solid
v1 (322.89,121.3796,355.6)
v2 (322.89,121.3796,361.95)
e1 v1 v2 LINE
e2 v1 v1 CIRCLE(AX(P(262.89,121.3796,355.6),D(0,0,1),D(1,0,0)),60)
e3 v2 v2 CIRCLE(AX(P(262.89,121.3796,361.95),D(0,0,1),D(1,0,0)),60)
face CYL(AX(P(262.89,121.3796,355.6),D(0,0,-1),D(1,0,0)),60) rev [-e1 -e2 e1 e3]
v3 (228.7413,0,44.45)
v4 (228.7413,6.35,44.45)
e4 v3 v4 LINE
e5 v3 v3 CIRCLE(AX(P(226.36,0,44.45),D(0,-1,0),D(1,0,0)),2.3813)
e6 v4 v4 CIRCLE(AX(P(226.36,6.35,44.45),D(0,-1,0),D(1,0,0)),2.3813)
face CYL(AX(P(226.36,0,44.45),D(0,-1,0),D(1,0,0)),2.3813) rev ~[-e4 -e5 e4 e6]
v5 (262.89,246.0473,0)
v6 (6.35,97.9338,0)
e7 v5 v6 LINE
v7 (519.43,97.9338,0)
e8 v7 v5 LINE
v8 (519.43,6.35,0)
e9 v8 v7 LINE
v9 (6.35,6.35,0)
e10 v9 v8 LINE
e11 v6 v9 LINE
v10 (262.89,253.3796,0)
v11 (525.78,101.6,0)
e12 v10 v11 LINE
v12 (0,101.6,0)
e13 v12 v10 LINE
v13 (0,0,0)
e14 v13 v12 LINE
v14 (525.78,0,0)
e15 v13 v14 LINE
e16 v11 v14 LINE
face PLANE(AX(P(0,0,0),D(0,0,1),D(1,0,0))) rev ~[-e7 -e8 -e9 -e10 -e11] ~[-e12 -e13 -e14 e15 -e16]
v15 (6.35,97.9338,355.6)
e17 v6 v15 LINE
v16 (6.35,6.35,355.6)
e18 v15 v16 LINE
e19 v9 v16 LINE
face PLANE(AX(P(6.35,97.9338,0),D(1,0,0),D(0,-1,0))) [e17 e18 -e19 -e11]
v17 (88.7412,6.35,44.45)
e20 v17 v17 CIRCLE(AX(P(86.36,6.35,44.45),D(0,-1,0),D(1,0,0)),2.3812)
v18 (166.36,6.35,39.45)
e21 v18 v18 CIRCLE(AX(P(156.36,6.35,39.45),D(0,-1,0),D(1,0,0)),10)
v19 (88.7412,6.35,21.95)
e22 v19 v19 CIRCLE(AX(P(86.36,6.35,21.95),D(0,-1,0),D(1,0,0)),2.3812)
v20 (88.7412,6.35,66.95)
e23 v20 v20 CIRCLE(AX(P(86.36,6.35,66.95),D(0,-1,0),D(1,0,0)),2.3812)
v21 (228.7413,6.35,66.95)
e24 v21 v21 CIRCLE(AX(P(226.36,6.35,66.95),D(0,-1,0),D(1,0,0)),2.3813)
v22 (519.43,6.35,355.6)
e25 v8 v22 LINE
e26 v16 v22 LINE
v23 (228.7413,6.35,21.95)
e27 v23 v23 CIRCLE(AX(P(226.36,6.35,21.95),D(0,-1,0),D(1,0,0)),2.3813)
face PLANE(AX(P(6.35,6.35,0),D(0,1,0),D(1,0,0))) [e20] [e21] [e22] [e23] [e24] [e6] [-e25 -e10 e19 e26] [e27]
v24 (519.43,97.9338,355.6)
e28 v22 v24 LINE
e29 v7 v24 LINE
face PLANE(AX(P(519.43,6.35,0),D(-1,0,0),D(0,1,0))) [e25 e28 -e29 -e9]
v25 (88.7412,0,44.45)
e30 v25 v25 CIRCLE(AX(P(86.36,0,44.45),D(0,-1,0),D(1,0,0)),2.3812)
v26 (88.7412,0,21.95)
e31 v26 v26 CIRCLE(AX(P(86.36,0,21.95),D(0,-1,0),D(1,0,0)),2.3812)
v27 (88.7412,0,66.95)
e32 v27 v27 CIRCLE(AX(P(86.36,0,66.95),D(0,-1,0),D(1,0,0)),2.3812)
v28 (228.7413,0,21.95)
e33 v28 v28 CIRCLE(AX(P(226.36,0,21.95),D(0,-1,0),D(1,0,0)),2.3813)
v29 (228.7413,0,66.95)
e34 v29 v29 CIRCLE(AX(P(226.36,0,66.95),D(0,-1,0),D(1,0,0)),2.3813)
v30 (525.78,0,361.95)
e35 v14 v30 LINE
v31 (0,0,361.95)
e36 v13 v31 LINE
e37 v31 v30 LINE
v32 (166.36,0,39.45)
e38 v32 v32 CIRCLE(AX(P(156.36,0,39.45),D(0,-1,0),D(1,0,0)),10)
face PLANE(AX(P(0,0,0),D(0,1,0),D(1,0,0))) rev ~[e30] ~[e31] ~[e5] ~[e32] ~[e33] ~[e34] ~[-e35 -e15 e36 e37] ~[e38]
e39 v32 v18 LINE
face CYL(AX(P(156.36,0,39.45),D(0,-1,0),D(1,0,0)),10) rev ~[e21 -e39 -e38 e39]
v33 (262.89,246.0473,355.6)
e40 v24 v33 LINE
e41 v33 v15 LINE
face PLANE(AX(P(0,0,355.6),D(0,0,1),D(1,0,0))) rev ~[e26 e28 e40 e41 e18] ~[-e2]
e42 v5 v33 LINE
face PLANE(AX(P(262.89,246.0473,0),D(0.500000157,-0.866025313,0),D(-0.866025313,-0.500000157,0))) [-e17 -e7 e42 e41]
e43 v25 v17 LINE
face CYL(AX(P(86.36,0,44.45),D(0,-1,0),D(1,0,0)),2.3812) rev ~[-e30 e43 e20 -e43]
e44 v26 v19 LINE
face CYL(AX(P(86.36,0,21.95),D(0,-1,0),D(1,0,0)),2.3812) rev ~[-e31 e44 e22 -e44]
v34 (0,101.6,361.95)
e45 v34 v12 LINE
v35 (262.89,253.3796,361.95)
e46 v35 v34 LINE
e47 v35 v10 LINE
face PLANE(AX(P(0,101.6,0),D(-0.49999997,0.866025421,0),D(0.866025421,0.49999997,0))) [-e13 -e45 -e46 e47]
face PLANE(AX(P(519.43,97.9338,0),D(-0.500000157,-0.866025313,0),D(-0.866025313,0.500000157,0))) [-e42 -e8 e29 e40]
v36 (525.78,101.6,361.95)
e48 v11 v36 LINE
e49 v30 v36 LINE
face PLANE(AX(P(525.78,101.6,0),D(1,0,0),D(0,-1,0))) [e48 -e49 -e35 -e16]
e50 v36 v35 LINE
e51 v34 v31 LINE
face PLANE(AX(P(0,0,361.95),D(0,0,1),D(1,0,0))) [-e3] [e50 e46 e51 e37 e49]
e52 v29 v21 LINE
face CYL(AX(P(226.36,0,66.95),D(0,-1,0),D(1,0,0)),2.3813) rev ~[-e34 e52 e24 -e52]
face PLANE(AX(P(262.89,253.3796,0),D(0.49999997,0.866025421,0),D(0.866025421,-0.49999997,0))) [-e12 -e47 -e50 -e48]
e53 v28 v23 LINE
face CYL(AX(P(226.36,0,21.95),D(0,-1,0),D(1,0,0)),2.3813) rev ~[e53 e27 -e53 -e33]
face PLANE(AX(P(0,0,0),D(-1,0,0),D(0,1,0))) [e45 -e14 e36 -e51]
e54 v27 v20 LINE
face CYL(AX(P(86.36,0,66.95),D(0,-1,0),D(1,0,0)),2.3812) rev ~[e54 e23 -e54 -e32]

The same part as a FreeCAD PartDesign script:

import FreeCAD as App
import Part
import Sketcher
Q = App.Units.Quantity

doc = App.newDocument("Part")
params = doc.addObject("Spreadsheet::Sheet", "Params")
for row, (alias, value) in enumerate([
    ("sketch1_height", "4 in"),
    ("sketch1_width", "20.7 in"),
    ("pad1_length", "14 in"),
    ("sketch2_height", "4 in"),
    ("sketch2_width", "20.7 in"),
    ("pad2_length", "0.25 in"),
    ("sketch3_diameter", "0.1875 in"),
    ("pocket1_length", "0.25 in"),
], start=1):
    params.set(f"A{row}", alias)
    params.set(f"B{row}", "=" + value)
    params.setAlias(f"B{row}", alias)

body = doc.addObject("PartDesign::Body", "Body")

# Sketch on XY plane
sketch1 = body.newObject("Sketcher::SketchObject", "Sketch")
sketch1.AttachmentSupport = (doc.getObject("XY_Plane"), [""])
sketch1.MapMode = "FlatFace"
sketch1.addGeometry(Part.LineSegment(App.Vector(0, 102, 0), App.Vector(0, 0, 0)), False)
sketch1.addGeometry(Part.LineSegment(App.Vector(0, 0, 0), App.Vector(526, 0, 0)), False)
sketch1.addGeometry(Part.LineSegment(App.Vector(526, 0, 0), App.Vector(526, 102, 0)), False)
sketch1.addGeometry(Part.LineSegment(App.Vector(526, 102, 0), App.Vector(263, 253, 0)), False)
sketch1.addGeometry(Part.LineSegment(App.Vector(263, 253, 0), App.Vector(0, 102, 0)), False)
sketch1.addGeometry(Part.LineSegment(App.Vector(6, 98, 0), App.Vector(263, 246, 0)), False)
sketch1.addGeometry(Part.LineSegment(App.Vector(263, 246, 0), App.Vector(519, 98, 0)), False)
sketch1.addGeometry(Part.LineSegment(App.Vector(519, 98, 0), App.Vector(519, 6, 0)), False)
sketch1.addGeometry(Part.LineSegment(App.Vector(519, 6, 0), App.Vector(6, 6, 0)), False)
sketch1.addGeometry(Part.LineSegment(App.Vector(6, 6, 0), App.Vector(6, 98, 0)), False)
sketch1.addConstraint(Sketcher.Constraint("Coincident", 0, 2, 1, 1))
sketch1.addConstraint(Sketcher.Constraint("Coincident", 1, 2, 2, 1))
sketch1.addConstraint(Sketcher.Constraint("Coincident", 2, 2, 3, 1))
sketch1.addConstraint(Sketcher.Constraint("Coincident", 3, 2, 4, 1))
sketch1.addConstraint(Sketcher.Constraint("Coincident", 4, 2, 0, 1))
sketch1.addConstraint(Sketcher.Constraint("Coincident", 5, 2, 6, 1))
sketch1.addConstraint(Sketcher.Constraint("Coincident", 6, 2, 7, 1))
sketch1.addConstraint(Sketcher.Constraint("Coincident", 7, 2, 8, 1))
sketch1.addConstraint(Sketcher.Constraint("Coincident", 8, 2, 9, 1))
sketch1.addConstraint(Sketcher.Constraint("Coincident", 9, 2, 5, 1))
sketch1.addConstraint(Sketcher.Constraint("Vertical", 0))
sketch1.addConstraint(Sketcher.Constraint("Horizontal", 1))
sketch1.addConstraint(Sketcher.Constraint("Vertical", 2))
sketch1.addConstraint(Sketcher.Constraint("Vertical", 7))
sketch1.addConstraint(Sketcher.Constraint("Horizontal", 8))
sketch1.addConstraint(Sketcher.Constraint("Vertical", 9))
sketch1.addConstraint(Sketcher.Constraint("Coincident", 0, 2, -1, 1))
sketch1.addConstraint(Sketcher.Constraint("Parallel", 4, 5))
sketch1.addConstraint(Sketcher.Constraint("Parallel", 3, 6))
sketch1.addConstraint(Sketcher.Constraint("Horizontal", 2, 2, 4, 2))
sketch1.addConstraint(Sketcher.Constraint("Horizontal", 6, 2, 9, 2))
sketch1.addConstraint(Sketcher.Constraint("Vertical", 3, 2, 5, 2))
sketch1.addConstraint(Sketcher.Constraint("Equal", 3, 4))
sketch1.addConstraint(Sketcher.Constraint("DistanceY", 0, 2, 0, 1, Q("4 in")))
sketch1.addConstraint(Sketcher.Constraint("DistanceX", 1, 1, 1, 2, Q("20.7 in")))
sketch1.addConstraint(Sketcher.Constraint("DistanceY", -1, 1, 7, 2, Q("0.25 in")))
sketch1.addConstraint(Sketcher.Constraint("DistanceX", -1, 1, 8, 2, Q("0.25 in")))
sketch1.addConstraint(Sketcher.Constraint("Angle", 3, Q("150 deg")))
sketch1.addConstraint(Sketcher.Constraint("DistanceY", 7, 2, 7, 1, Q("91.5838 mm")))
sketch1.setExpression("Constraints[23]", "Params.sketch1_height")
sketch1.setExpression("Constraints[24]", "Params.sketch1_width")
pad1 = body.newObject("PartDesign::Pad", "Pad")
pad1.Profile = sketch1
pad1.setExpression("Length", "Params.pad1_length")

# Sketch on XY plane
sketch2 = body.newObject("Sketcher::SketchObject", "Sketch001")
sketch2.AttachmentSupport = (doc.getObject("XY_Plane"), [""])
sketch2.MapMode = "FlatFace"
sketch2.AttachmentOffset = App.Placement(App.Vector(0, 0, 14 * 25.4), App.Rotation())
sketch2.addGeometry(Part.LineSegment(App.Vector(0, 102, 0), App.Vector(0, 0, 0)), False)
sketch2.addGeometry(Part.LineSegment(App.Vector(0, 0, 0), App.Vector(526, 0, 0)), False)
sketch2.addGeometry(Part.LineSegment(App.Vector(526, 0, 0), App.Vector(526, 102, 0)), False)
sketch2.addGeometry(Part.LineSegment(App.Vector(526, 102, 0), App.Vector(263, 253, 0)), False)
sketch2.addGeometry(Part.LineSegment(App.Vector(263, 253, 0), App.Vector(0, 102, 0)), False)
sketch2.addGeometry(Part.Circle(App.Vector(263, 121, 0), App.Vector(0, 0, 1), 60), False)
sketch2.addConstraint(Sketcher.Constraint("Coincident", 0, 2, 1, 1))
sketch2.addConstraint(Sketcher.Constraint("Coincident", 1, 2, 2, 1))
sketch2.addConstraint(Sketcher.Constraint("Coincident", 2, 2, 3, 1))
sketch2.addConstraint(Sketcher.Constraint("Coincident", 3, 2, 4, 1))
sketch2.addConstraint(Sketcher.Constraint("Coincident", 4, 2, 0, 1))
sketch2.addConstraint(Sketcher.Constraint("Vertical", 0))
sketch2.addConstraint(Sketcher.Constraint("Horizontal", 1))
sketch2.addConstraint(Sketcher.Constraint("Vertical", 2))
sketch2.addConstraint(Sketcher.Constraint("Coincident", 0, 2, -1, 1))
sketch2.addConstraint(Sketcher.Constraint("Horizontal", 2, 2, 4, 2))
sketch2.addConstraint(Sketcher.Constraint("Vertical", 5, 3, 3, 2))
sketch2.addConstraint(Sketcher.Constraint("Equal", 3, 4))
sketch2.addConstraint(Sketcher.Constraint("Diameter", 5, Q("4.7244 in")))
sketch2.addConstraint(Sketcher.Constraint("DistanceY", 0, 2, 0, 1, Q("4 in")))
sketch2.addConstraint(Sketcher.Constraint("DistanceX", 1, 1, 1, 2, Q("20.7 in")))
sketch2.addConstraint(Sketcher.Constraint("Angle", 3, Q("150 deg")))
sketch2.addConstraint(Sketcher.Constraint("DistanceY", 5, 3, 3, 2, Q("132 mm")))
sketch2.setExpression("Constraints[13]", "Params.sketch2_height")
sketch2.setExpression("Constraints[14]", "Params.sketch2_width")
pad2 = body.newObject("PartDesign::Pad", "Pad001")
pad2.Profile = sketch2
pad2.setExpression("Length", "Params.pad2_length")

# Sketch on XZ plane
sketch3 = body.newObject("Sketcher::SketchObject", "Sketch002")
sketch3.AttachmentSupport = (doc.getObject("XZ_Plane"), [""])
sketch3.MapMode = "FlatFace"
sketch3.addGeometry(Part.Circle(App.Vector(86.4, 44.5, 0), App.Vector(0, 0, 1), 2.4), False)
sketch3.addGeometry(Part.Circle(App.Vector(86.4, 21.9, 0), App.Vector(0, 0, 1), 2.4), False)
sketch3.addGeometry(Part.Circle(App.Vector(86.4, 67, 0), App.Vector(0, 0, 1), 2.4), False)
sketch3.addGeometry(Part.Circle(App.Vector(226.4, 67, 0), App.Vector(0, 0, 1), 2.4), False)
sketch3.addGeometry(Part.Circle(App.Vector(226.4, 44.5, 0), App.Vector(0, 0, 1), 2.4), False)
sketch3.addGeometry(Part.Circle(App.Vector(226.4, 21.9, 0), App.Vector(0, 0, 1), 2.4), False)
sketch3.addGeometry(Part.Circle(App.Vector(156.4, 39.5, 0), App.Vector(0, 0, 1), 10), False)
sketch3.addConstraint(Sketcher.Constraint("Equal", 0, 1))
sketch3.addConstraint(Sketcher.Constraint("Equal", 1, 2))
sketch3.addConstraint(Sketcher.Constraint("Equal", 2, 3))
sketch3.addConstraint(Sketcher.Constraint("Equal", 3, 4))
sketch3.addConstraint(Sketcher.Constraint("Equal", 4, 5))
sketch3.addConstraint(Sketcher.Constraint("Horizontal", 2, 3, 3, 3))
sketch3.addConstraint(Sketcher.Constraint("Horizontal", 0, 3, 4, 3))
sketch3.addConstraint(Sketcher.Constraint("Horizontal", 1, 3, 5, 3))
sketch3.addConstraint(Sketcher.Constraint("Vertical", 0, 3, 1, 3))
sketch3.addConstraint(Sketcher.Constraint("Vertical", 1, 3, 2, 3))
sketch3.addConstraint(Sketcher.Constraint("Vertical", 3, 3, 4, 3))
sketch3.addConstraint(Sketcher.Constraint("Vertical", 4, 3, 5, 3))
sketch3.addConstraint(Sketcher.Constraint("Diameter", 0, Q("0.1875 in")))
sketch3.addConstraint(Sketcher.Constraint("Diameter", 6, Q("0.7874 in")))
sketch3.addConstraint(Sketcher.Constraint("DistanceX", -1, 1, 0, 3, Q("3.4 in")))
sketch3.addConstraint(Sketcher.Constraint("DistanceX", 2, 3, 3, 3, Q("5.5118 in")))
sketch3.addConstraint(Sketcher.Constraint("DistanceY", -1, 1, 0, 3, Q("1.75 in")))
sketch3.addConstraint(Sketcher.Constraint("DistanceY", 1, 3, 2, 3, Q("45 mm")))
sketch3.addConstraint(Sketcher.Constraint("DistanceX", -1, 1, 6, 3, Q("6.1559 in")))
sketch3.addConstraint(Sketcher.Constraint("DistanceY", -1, 1, 1, 3, Q("21.95 mm")))
sketch3.addConstraint(Sketcher.Constraint("DistanceY", -1, 1, 6, 3, Q("39.45 mm")))
sketch3.setExpression("Constraints[12]", "Params.sketch3_diameter")
pocket1 = body.newObject("PartDesign::Pocket", "Pocket")
pocket1.Profile = sketch3
pocket1.setExpression("Length", "Params.pocket1_length")

doc.recompute()
